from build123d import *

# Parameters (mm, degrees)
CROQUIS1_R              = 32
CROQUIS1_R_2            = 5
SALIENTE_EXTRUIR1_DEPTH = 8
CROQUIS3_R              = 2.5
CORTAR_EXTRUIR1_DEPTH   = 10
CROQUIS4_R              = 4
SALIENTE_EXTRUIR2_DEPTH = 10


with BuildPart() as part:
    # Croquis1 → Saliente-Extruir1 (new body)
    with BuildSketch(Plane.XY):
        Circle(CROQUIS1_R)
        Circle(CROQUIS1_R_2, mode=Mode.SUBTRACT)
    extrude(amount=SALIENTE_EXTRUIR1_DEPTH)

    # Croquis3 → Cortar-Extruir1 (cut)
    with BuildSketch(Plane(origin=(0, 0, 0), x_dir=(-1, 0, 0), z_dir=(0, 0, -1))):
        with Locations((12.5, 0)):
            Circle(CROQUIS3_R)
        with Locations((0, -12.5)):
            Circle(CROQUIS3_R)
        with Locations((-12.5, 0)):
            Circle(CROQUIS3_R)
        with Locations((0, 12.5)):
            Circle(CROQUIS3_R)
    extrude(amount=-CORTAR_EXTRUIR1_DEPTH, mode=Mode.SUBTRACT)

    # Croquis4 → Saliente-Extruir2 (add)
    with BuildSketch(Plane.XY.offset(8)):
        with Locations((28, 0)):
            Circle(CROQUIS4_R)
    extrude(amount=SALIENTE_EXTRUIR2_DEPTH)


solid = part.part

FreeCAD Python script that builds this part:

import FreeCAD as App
import Part
import Sketcher

doc = App.newDocument("Part")
body = doc.addObject("PartDesign::Body", "Body")

# Sketch on XY plane
sketch1 = body.newObject("Sketcher::SketchObject", "Sketch")
sketch1.AttachmentSupport = (doc.getObject("XY_Plane"), [""])
sketch1.MapMode = "FlatFace"
sketch1.addGeometry([
    Part.Circle(App.Vector(0, 0, 0), App.Vector(0, 0, 1), 32),
    Part.Circle(App.Vector(0, 0, 0), App.Vector(0, 0, 1), 5),
], False)
sketch1.addConstraint([
    Sketcher.Constraint("Coincident", 0, 3, -1, 1),
    Sketcher.Constraint("Coincident", 1, 3, -1, 1),
    Sketcher.Constraint("Diameter", 0, 64.0),
    Sketcher.Constraint("Diameter", 1, 10.0),
])
pad1 = body.newObject("PartDesign::Pad", "Pad")
pad1.Profile = sketch1
pad1.Length = 8

# Sketch on XY plane
sketch2 = body.newObject("Sketcher::SketchObject", "Sketch001")
sketch2.AttachmentSupport = (doc.getObject("XY_Plane"), [""])
sketch2.MapMode = "FlatFace"
sketch2.addGeometry([
    Part.Circle(App.Vector(-12.5, 0, 0), App.Vector(0, 0, 1), 2.5),
    Part.Circle(App.Vector(0, -12.5, 0), App.Vector(0, 0, 1), 2.5),
    Part.Circle(App.Vector(12.5, 0, 0), App.Vector(0, 0, 1), 2.5),
    Part.Circle(App.Vector(0, 12.5, 0), App.Vector(0, 0, 1), 2.5),
], False)
sketch2.addConstraint([
    Sketcher.Constraint("Equal", 0, 1),
    Sketcher.Constraint("Equal", 1, 2),
    Sketcher.Constraint("Equal", 2, 3),
    Sketcher.Constraint("Symmetric", 0, 3, 2, 3, -1, 1),
    Sketcher.Constraint("Symmetric", 1, 3, 3, 3, -1, 1),
    Sketcher.Constraint("PointOnObject", 0, 3, -1),
    Sketcher.Constraint("PointOnObject", 1, 3, -2),
    Sketcher.Constraint("Diameter", 0, 5.0),
    Sketcher.Constraint("DistanceX", 0, 3, 2, 3, 25.0),
    Sketcher.Constraint("DistanceY", 1, 3, 3, 3, 25.0),
])
pocket1 = body.newObject("PartDesign::Pocket", "Pocket")
pocket1.Profile = sketch2
pocket1.Length = 10
pocket1.Reversed = True

# Sketch on XY plane
sketch3 = body.newObject("Sketcher::SketchObject", "Sketch002")
sketch3.AttachmentSupport = (doc.getObject("XY_Plane"), [""])
sketch3.MapMode = "FlatFace"
sketch3.AttachmentOffset = App.Placement(App.Vector(0, 0, 8), App.Rotation())
sketch3.addGeometry(Part.Circle(App.Vector(28, 0, 0), App.Vector(0, 0, 1), 4), False)
sketch3.addConstraint([
    Sketcher.Constraint("PointOnObject", 0, 3, -1),
    Sketcher.Constraint("Diameter", 0, 8.0),
    Sketcher.Constraint("DistanceX", -1, 1, 0, 3, 28.0),
])
pad2 = body.newObject("PartDesign::Pad", "Pad001")
pad2.Profile = sketch3
pad2.Length = 10

doc.recompute()
